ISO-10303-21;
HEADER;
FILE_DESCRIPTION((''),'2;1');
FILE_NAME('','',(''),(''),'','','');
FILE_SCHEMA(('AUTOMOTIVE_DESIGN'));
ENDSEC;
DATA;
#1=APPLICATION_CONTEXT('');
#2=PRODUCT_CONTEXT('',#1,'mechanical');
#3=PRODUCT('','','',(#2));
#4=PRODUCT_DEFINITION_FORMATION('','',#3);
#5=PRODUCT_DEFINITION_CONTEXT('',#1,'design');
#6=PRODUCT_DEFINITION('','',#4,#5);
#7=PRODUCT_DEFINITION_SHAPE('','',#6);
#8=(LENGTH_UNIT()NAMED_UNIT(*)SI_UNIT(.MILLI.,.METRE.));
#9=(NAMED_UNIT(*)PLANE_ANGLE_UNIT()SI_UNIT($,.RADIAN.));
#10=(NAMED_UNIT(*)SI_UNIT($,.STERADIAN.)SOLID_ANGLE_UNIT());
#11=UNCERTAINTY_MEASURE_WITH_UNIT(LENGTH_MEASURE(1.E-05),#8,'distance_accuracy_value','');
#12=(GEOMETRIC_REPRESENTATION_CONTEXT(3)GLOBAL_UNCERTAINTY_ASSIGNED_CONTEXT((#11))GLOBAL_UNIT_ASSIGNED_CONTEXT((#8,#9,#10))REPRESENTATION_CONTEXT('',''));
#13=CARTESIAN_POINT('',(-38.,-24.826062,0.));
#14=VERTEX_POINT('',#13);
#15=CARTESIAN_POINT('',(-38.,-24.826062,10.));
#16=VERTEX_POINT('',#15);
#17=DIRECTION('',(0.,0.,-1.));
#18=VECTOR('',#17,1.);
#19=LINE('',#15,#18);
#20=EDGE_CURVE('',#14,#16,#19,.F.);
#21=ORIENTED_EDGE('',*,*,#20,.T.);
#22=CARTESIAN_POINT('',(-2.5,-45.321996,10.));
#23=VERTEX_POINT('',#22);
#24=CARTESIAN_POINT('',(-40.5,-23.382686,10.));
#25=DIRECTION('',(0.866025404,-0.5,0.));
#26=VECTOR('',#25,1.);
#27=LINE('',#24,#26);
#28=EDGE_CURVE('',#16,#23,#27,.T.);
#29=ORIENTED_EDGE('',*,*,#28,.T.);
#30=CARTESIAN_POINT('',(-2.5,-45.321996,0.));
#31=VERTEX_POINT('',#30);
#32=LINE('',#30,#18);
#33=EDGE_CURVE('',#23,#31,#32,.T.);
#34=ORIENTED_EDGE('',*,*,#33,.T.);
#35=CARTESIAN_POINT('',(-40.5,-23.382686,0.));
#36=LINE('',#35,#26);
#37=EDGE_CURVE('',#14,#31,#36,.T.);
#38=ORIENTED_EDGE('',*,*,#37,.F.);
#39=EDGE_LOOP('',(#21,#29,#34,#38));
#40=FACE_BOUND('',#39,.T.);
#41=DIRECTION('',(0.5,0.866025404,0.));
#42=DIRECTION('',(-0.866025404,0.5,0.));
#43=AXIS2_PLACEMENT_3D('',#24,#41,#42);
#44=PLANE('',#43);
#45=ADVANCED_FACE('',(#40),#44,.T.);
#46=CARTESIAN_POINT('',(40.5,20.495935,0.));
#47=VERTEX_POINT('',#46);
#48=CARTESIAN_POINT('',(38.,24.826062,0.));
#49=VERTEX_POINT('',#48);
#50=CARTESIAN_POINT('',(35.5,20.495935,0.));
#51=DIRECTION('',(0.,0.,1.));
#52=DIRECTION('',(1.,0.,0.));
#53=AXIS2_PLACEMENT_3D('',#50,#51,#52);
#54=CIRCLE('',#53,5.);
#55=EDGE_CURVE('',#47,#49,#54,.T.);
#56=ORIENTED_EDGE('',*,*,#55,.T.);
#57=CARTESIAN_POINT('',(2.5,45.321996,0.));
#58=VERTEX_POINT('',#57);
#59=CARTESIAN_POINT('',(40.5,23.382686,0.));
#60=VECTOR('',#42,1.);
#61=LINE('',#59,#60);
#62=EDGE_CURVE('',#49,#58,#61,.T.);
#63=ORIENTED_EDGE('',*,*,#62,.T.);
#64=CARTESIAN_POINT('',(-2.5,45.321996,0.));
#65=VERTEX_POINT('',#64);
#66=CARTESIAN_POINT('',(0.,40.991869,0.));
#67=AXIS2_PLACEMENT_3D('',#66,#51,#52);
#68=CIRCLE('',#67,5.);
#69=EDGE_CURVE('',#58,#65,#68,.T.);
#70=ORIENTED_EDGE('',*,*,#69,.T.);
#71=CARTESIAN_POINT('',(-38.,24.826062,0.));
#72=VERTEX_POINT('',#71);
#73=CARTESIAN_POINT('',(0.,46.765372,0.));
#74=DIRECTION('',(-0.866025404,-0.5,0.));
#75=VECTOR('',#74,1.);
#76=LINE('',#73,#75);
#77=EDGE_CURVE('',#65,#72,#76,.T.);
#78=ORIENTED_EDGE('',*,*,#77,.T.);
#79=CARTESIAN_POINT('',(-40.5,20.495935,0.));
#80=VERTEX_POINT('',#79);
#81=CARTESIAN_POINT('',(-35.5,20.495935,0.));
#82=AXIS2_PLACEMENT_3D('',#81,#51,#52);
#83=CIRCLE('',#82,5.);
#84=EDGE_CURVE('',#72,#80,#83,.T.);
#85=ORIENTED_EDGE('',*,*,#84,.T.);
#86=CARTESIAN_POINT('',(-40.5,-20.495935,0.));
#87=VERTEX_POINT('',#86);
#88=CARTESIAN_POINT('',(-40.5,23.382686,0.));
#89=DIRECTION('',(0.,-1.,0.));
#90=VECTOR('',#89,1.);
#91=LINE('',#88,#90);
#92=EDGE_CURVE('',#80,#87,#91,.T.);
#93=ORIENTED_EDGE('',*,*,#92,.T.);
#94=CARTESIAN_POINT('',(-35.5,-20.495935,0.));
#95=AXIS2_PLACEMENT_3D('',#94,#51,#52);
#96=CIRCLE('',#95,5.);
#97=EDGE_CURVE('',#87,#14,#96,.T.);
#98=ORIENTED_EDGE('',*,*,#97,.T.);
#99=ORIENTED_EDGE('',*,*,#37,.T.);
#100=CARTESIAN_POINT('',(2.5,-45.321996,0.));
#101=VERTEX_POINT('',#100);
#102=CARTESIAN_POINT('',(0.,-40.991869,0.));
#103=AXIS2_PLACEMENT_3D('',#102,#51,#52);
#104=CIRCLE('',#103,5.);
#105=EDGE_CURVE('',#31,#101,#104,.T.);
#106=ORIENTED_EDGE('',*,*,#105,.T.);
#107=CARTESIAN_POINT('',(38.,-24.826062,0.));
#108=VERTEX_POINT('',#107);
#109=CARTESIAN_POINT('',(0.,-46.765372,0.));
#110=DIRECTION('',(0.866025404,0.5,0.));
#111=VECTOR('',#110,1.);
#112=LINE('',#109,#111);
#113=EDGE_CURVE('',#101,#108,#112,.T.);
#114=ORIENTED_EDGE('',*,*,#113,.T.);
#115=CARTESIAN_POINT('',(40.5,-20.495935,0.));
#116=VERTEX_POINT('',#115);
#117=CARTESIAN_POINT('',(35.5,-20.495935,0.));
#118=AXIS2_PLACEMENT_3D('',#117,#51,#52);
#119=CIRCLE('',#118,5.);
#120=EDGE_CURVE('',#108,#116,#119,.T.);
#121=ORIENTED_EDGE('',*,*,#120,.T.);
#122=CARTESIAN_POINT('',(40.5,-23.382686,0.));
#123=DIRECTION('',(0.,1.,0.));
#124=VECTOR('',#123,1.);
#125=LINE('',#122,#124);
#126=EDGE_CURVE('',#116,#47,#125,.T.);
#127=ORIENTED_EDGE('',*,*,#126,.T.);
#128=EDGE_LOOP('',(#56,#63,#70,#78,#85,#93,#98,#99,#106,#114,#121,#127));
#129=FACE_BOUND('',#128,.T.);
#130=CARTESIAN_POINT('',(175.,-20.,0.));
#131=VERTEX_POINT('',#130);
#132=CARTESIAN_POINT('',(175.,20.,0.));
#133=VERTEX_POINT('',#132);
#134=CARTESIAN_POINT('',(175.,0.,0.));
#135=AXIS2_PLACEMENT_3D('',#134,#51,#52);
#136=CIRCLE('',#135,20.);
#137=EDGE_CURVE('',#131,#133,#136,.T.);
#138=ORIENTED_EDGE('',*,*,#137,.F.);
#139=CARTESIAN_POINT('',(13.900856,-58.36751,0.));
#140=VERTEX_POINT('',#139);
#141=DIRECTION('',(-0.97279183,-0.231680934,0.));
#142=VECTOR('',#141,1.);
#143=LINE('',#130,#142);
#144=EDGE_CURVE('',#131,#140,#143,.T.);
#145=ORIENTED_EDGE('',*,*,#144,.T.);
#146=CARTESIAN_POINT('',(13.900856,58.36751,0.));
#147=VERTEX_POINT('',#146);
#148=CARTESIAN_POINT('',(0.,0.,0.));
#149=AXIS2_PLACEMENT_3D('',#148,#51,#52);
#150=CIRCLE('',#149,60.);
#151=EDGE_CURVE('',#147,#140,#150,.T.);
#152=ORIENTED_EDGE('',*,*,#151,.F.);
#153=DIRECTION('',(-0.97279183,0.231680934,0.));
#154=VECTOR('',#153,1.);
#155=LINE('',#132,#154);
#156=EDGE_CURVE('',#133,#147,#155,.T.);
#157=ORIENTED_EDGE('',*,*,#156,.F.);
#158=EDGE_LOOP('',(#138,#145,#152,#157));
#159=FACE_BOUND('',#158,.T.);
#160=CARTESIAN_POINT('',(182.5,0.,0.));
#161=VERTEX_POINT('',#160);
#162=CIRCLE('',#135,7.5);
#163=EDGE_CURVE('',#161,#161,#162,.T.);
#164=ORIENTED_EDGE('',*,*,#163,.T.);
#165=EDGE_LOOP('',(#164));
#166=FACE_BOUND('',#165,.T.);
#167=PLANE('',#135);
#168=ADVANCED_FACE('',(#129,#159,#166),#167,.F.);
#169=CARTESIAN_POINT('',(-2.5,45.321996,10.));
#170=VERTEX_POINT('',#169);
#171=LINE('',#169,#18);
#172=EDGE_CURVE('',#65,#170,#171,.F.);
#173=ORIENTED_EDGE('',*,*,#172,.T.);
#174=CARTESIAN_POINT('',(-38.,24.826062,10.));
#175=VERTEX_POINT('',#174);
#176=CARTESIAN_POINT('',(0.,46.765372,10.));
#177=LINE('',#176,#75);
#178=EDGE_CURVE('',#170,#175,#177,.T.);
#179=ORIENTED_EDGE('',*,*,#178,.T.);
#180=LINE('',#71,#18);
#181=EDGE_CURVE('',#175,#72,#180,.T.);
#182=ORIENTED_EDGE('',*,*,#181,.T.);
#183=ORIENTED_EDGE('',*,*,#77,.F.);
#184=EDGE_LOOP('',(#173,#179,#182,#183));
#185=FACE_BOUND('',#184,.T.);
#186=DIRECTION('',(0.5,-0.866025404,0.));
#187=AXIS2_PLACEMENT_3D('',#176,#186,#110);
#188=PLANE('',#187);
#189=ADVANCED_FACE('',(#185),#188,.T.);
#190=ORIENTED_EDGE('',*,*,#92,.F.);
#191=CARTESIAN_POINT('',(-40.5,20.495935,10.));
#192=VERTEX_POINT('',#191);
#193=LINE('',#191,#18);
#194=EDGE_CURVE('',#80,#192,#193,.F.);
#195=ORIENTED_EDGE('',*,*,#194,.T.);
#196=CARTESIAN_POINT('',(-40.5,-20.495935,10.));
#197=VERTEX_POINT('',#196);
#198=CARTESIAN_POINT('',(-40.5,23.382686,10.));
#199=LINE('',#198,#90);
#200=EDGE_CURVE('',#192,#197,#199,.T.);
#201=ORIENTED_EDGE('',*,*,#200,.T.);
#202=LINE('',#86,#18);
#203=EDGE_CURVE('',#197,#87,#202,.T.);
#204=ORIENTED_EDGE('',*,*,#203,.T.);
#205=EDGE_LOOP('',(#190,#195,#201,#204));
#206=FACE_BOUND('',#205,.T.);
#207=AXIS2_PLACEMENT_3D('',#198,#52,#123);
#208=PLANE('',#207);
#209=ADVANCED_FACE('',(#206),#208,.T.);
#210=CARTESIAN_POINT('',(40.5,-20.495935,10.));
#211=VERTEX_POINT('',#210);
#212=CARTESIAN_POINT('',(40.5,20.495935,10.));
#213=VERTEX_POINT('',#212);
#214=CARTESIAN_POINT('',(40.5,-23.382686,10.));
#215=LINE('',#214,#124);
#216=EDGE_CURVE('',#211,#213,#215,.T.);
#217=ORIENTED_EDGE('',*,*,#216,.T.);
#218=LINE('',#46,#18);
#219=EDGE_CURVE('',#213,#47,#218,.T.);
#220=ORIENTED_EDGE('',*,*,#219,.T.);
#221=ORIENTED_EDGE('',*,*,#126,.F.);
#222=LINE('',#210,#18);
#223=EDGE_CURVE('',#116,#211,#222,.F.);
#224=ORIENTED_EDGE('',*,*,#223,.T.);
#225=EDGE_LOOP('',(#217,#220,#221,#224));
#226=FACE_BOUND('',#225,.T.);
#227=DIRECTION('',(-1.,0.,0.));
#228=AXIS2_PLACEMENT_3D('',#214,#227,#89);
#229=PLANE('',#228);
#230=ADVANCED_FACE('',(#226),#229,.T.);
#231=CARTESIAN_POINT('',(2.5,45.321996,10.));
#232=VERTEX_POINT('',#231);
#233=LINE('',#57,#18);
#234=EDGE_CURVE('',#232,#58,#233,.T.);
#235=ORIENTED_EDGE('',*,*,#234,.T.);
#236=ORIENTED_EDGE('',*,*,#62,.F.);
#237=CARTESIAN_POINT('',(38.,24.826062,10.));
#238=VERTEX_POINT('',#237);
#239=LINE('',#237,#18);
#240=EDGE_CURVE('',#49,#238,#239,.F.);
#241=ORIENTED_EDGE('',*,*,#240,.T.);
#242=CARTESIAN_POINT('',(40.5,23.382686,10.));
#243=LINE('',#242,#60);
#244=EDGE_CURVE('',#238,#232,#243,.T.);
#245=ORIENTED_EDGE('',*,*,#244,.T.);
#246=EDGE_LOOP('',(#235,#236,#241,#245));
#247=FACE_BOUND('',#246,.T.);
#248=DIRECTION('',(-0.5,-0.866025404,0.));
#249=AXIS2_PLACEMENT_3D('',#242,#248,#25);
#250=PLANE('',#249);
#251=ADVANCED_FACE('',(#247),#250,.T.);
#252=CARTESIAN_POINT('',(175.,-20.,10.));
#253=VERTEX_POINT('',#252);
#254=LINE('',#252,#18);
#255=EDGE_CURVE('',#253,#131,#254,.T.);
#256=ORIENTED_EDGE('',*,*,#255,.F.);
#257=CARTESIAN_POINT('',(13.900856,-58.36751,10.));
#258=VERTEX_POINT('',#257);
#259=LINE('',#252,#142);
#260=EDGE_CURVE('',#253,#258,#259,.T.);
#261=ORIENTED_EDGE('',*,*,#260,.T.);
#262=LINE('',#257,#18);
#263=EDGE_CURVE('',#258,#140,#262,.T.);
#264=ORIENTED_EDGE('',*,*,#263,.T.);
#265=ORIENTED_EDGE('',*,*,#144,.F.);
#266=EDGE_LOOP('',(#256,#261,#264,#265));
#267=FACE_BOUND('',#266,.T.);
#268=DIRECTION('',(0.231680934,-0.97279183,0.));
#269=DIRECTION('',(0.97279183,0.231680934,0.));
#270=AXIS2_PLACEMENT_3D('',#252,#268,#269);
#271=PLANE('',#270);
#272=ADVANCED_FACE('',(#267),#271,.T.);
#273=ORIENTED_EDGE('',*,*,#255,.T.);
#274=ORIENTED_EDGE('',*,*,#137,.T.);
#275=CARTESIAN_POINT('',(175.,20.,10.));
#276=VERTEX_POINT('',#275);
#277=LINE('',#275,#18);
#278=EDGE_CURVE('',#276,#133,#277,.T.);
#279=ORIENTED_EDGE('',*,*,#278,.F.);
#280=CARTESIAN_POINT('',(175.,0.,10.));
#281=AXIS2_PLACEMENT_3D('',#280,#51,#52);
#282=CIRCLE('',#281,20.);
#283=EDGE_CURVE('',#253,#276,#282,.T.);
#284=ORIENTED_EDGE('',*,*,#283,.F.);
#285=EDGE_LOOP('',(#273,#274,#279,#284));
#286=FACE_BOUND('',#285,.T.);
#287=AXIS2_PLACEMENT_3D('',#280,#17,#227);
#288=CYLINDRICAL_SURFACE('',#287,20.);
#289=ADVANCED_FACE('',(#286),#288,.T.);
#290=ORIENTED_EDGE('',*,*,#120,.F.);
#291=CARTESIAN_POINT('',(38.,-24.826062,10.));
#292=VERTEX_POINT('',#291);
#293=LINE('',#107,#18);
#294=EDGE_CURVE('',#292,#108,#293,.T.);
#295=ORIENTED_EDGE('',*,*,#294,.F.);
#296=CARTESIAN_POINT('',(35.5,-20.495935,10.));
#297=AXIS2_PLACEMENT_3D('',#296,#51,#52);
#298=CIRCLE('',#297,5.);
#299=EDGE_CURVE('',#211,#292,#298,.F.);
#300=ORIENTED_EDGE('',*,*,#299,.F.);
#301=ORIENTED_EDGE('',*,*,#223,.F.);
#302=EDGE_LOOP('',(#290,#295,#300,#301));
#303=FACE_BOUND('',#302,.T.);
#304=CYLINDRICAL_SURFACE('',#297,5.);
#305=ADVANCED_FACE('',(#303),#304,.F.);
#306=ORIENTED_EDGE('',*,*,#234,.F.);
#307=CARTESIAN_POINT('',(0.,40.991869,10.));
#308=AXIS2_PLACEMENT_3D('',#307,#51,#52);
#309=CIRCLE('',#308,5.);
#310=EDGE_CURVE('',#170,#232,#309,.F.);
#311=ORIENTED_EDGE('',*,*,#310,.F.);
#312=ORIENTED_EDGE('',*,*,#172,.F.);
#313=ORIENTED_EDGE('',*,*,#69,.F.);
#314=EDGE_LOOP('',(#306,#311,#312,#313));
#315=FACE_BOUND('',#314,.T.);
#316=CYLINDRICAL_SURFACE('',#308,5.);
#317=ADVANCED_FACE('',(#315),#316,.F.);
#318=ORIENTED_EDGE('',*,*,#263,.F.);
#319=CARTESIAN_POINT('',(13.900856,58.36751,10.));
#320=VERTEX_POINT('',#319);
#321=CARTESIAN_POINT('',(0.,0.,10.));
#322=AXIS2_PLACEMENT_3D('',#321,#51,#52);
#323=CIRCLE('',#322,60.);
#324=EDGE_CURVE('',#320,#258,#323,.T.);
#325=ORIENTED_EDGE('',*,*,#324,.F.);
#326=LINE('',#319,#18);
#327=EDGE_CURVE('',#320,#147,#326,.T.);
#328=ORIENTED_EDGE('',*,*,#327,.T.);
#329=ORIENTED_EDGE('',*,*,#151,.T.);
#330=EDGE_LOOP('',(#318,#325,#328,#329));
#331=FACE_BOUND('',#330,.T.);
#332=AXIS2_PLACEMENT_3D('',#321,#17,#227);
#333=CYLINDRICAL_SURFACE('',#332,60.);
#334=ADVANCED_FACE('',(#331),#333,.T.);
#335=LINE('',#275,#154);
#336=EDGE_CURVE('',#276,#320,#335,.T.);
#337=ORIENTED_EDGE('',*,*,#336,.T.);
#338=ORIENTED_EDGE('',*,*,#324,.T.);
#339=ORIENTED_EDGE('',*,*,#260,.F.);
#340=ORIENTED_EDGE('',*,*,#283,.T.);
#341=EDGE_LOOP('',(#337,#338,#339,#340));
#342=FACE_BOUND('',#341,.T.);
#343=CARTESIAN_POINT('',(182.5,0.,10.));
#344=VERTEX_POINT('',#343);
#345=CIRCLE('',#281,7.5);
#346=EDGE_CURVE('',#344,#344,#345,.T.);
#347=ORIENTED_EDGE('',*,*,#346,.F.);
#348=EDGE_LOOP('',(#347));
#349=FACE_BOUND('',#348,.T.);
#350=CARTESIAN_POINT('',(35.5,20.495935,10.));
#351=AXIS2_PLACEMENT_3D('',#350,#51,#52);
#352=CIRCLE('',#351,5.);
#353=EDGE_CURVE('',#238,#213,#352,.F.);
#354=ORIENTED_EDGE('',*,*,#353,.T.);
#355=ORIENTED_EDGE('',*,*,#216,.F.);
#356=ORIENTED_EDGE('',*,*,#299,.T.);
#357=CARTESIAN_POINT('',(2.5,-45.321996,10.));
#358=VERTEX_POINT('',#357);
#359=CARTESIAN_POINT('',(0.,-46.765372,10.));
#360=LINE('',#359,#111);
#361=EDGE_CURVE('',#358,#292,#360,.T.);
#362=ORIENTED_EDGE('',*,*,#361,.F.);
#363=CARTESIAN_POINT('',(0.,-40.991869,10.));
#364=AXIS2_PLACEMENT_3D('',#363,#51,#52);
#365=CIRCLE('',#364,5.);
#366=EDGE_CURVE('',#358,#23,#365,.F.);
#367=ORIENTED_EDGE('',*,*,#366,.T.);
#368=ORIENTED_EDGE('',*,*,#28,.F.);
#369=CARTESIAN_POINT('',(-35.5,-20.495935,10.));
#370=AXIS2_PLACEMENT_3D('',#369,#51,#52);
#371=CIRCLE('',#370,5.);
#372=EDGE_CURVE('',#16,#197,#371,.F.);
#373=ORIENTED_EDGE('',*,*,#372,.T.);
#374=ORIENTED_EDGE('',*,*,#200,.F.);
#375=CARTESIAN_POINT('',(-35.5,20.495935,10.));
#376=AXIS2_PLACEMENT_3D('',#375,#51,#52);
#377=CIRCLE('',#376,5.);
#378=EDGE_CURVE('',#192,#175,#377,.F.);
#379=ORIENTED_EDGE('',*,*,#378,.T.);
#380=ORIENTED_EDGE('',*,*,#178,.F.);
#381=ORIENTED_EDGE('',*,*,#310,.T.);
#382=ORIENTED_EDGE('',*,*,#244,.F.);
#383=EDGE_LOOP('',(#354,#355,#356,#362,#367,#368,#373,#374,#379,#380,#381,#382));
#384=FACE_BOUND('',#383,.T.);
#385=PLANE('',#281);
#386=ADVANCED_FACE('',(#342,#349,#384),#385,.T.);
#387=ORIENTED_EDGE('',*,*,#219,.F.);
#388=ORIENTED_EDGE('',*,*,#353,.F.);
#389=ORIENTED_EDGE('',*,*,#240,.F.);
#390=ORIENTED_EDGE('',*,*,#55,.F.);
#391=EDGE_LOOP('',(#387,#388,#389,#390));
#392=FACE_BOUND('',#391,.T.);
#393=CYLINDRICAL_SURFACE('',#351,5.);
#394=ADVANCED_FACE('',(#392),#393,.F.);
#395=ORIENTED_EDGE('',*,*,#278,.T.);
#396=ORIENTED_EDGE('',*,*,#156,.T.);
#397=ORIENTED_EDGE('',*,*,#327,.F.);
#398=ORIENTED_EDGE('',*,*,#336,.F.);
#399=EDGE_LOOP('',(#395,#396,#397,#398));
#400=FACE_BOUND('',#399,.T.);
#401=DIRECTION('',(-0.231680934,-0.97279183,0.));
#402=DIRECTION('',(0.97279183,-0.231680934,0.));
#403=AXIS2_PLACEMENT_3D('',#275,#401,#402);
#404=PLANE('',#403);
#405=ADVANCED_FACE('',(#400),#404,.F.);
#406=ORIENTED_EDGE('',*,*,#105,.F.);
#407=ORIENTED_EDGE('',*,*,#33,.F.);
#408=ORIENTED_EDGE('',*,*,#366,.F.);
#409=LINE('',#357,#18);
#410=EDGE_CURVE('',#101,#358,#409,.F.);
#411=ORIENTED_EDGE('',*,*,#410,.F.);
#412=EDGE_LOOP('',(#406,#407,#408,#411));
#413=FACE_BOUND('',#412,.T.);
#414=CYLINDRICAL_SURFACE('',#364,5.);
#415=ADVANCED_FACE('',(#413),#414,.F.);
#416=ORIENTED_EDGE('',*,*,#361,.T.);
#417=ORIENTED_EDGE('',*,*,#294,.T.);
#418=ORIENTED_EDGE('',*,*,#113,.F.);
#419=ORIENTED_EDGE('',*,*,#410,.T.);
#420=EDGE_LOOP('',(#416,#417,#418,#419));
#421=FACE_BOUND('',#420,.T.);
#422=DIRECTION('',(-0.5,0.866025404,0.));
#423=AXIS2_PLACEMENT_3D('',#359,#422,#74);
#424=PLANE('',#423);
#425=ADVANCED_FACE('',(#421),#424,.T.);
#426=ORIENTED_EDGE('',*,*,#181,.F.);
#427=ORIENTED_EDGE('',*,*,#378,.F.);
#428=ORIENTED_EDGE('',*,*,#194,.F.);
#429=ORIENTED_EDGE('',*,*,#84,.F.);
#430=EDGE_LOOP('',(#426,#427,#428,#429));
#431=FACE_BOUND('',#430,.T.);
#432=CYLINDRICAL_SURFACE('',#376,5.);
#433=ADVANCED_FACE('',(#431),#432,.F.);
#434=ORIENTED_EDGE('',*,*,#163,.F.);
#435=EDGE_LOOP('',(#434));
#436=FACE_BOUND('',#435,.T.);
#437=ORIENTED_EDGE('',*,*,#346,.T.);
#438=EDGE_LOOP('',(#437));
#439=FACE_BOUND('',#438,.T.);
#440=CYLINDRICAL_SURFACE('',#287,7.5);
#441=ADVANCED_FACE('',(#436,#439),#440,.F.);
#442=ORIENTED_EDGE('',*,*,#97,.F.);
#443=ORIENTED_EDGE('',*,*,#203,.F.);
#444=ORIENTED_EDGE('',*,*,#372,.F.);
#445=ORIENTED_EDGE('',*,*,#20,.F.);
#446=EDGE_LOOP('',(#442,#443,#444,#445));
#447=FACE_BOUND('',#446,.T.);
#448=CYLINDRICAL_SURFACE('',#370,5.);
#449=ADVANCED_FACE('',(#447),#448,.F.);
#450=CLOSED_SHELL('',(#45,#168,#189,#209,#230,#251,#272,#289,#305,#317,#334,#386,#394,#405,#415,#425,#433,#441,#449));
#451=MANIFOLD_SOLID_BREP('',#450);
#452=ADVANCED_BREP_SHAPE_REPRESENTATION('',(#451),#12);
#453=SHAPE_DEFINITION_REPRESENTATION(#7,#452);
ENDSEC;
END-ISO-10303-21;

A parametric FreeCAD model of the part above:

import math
import FreeCAD as App
import Part
import Sketcher
Q = App.Units.Quantity


def edges_at(feature, points):
    """Names of the edges that pass closest to the given points."""
    edges = feature.Shape.Edges
    near = lambda p: min(range(len(edges)), key=lambda i: edges[i].distToShape(Part.Vertex(*p))[0])
    return sorted({f"Edge{near(p) + 1}" for p in points})


def add_polygon(sketch, points):
    """Adds a closed chain of lines whose ends are joined by coincident constraints."""
    first, n = sketch.GeometryCount, len(points)
    for a, b in zip(points, points[1:] + points[:1]):
        sketch.addGeometry(Part.LineSegment(App.Vector(*a, 0), App.Vector(*b, 0)), False)
    for i in range(n):
        sketch.addConstraint(Sketcher.Constraint("Coincident", first + i, 2, first + (i + 1) % n, 1))

doc = App.newDocument("Part")
body = doc.addObject("PartDesign::Body", "Body")

# Sketch on XY plane
sketch1 = doc.addObject("Sketcher::SketchObject", "Sketch")
body.addObject(sketch1)
sketch1.AttachmentSupport = (doc.XY_Plane, [""])
sketch1.MapMode = "FlatFace"
sketch1.addGeometry(Part.LineSegment(App.Vector(175, 20, 0), App.Vector(14, 58, 0)), False)  # 0
sketch1.addGeometry(Part.ArcOfCircle(Part.Circle(App.Vector(0, 0, 0), App.Vector(0, 0, 1), 60), math.radians(77), math.radians(283)), False)  # 1
sketch1.addGeometry(Part.LineSegment(App.Vector(14, -58, 0), App.Vector(175, -20, 0)), False)  # 2
sketch1.addGeometry(Part.ArcOfCircle(Part.Circle(App.Vector(175, 0, 0), App.Vector(0, 0, 1), 20), math.radians(-90), math.radians(90)), False)  # 3
add_polygon(sketch1, [(0, 47), (40, 23), (40, -23), (0, -47), (-40, -23), (-40, 23)])  # lines 4-9
sketch1.addGeometry(Part.Circle(App.Vector(175, 0, 0), App.Vector(0, 0, 1), 8), False)  # 10
sketch1.addConstraint([
    Sketcher.Constraint("Tangent", 0, 2, 1, 1),
    Sketcher.Constraint("Tangent", 1, 2, 2, 1),
    Sketcher.Constraint("Coincident", 2, 2, 3, 1),
    Sketcher.Constraint("Coincident", 3, 2, 0, 1),
    Sketcher.Constraint("Vertical", 5),
    Sketcher.Constraint("Vertical", 8),
    Sketcher.Constraint("Coincident", 1, 3, -1, 1),
    Sketcher.Constraint("Coincident", 10, 3, 3, 3),
    Sketcher.Constraint("Symmetric", 4, 2, 7, 2, -1, 1),
    Sketcher.Constraint("Symmetric", 6, 2, 9, 2, -1, 1),
    Sketcher.Constraint("Symmetric", 2, 2, 3, 2, -1),
    Sketcher.Constraint("PointOnObject", 6, 2, -2),
    Sketcher.Constraint("Parallel", 6, 9),
    Sketcher.Constraint("Horizontal", 5, 2, 7, 2),
    Sketcher.Constraint("Vertical", 10, 3, 2, 2),
    Sketcher.Constraint("Diameter", 10, Q("15 mm")),
    Sketcher.Constraint("Radius", 1, Q("60 mm")),
    Sketcher.Constraint("Radius", 3, Q("20 mm")),
    Sketcher.Constraint("Angle", 4, Q("-30 deg")),
    Sketcher.Constraint("DistanceX", -1, 1, 3, 3, Q("175 mm")),
    Sketcher.Constraint("DistanceX", 7, 2, 5, 2, Q("81 mm")),
    Sketcher.Constraint("DistanceY", 5, 2, 5, 1, Q("46.765372 mm")),
])
pad1 = doc.addObject("PartDesign::Pad", "Pad")
body.addObject(pad1)
pad1.Profile = sketch1
pad1.Length = 10
doc.recompute()

fillet = doc.addObject("PartDesign::Fillet", "Fillet")
body.addObject(fillet)
fillet.Base = (pad1, edges_at(pad1, [
    (0, -46.765, 5),
    (40.5, -23.383, 5),
    (40.5, 23.383, 5),
    (0, 46.765, 5),
    (-40.5, 23.383, 5),
    (-40.5, -23.383, 5),
]))
fillet.Radius = 5

doc.recompute()
